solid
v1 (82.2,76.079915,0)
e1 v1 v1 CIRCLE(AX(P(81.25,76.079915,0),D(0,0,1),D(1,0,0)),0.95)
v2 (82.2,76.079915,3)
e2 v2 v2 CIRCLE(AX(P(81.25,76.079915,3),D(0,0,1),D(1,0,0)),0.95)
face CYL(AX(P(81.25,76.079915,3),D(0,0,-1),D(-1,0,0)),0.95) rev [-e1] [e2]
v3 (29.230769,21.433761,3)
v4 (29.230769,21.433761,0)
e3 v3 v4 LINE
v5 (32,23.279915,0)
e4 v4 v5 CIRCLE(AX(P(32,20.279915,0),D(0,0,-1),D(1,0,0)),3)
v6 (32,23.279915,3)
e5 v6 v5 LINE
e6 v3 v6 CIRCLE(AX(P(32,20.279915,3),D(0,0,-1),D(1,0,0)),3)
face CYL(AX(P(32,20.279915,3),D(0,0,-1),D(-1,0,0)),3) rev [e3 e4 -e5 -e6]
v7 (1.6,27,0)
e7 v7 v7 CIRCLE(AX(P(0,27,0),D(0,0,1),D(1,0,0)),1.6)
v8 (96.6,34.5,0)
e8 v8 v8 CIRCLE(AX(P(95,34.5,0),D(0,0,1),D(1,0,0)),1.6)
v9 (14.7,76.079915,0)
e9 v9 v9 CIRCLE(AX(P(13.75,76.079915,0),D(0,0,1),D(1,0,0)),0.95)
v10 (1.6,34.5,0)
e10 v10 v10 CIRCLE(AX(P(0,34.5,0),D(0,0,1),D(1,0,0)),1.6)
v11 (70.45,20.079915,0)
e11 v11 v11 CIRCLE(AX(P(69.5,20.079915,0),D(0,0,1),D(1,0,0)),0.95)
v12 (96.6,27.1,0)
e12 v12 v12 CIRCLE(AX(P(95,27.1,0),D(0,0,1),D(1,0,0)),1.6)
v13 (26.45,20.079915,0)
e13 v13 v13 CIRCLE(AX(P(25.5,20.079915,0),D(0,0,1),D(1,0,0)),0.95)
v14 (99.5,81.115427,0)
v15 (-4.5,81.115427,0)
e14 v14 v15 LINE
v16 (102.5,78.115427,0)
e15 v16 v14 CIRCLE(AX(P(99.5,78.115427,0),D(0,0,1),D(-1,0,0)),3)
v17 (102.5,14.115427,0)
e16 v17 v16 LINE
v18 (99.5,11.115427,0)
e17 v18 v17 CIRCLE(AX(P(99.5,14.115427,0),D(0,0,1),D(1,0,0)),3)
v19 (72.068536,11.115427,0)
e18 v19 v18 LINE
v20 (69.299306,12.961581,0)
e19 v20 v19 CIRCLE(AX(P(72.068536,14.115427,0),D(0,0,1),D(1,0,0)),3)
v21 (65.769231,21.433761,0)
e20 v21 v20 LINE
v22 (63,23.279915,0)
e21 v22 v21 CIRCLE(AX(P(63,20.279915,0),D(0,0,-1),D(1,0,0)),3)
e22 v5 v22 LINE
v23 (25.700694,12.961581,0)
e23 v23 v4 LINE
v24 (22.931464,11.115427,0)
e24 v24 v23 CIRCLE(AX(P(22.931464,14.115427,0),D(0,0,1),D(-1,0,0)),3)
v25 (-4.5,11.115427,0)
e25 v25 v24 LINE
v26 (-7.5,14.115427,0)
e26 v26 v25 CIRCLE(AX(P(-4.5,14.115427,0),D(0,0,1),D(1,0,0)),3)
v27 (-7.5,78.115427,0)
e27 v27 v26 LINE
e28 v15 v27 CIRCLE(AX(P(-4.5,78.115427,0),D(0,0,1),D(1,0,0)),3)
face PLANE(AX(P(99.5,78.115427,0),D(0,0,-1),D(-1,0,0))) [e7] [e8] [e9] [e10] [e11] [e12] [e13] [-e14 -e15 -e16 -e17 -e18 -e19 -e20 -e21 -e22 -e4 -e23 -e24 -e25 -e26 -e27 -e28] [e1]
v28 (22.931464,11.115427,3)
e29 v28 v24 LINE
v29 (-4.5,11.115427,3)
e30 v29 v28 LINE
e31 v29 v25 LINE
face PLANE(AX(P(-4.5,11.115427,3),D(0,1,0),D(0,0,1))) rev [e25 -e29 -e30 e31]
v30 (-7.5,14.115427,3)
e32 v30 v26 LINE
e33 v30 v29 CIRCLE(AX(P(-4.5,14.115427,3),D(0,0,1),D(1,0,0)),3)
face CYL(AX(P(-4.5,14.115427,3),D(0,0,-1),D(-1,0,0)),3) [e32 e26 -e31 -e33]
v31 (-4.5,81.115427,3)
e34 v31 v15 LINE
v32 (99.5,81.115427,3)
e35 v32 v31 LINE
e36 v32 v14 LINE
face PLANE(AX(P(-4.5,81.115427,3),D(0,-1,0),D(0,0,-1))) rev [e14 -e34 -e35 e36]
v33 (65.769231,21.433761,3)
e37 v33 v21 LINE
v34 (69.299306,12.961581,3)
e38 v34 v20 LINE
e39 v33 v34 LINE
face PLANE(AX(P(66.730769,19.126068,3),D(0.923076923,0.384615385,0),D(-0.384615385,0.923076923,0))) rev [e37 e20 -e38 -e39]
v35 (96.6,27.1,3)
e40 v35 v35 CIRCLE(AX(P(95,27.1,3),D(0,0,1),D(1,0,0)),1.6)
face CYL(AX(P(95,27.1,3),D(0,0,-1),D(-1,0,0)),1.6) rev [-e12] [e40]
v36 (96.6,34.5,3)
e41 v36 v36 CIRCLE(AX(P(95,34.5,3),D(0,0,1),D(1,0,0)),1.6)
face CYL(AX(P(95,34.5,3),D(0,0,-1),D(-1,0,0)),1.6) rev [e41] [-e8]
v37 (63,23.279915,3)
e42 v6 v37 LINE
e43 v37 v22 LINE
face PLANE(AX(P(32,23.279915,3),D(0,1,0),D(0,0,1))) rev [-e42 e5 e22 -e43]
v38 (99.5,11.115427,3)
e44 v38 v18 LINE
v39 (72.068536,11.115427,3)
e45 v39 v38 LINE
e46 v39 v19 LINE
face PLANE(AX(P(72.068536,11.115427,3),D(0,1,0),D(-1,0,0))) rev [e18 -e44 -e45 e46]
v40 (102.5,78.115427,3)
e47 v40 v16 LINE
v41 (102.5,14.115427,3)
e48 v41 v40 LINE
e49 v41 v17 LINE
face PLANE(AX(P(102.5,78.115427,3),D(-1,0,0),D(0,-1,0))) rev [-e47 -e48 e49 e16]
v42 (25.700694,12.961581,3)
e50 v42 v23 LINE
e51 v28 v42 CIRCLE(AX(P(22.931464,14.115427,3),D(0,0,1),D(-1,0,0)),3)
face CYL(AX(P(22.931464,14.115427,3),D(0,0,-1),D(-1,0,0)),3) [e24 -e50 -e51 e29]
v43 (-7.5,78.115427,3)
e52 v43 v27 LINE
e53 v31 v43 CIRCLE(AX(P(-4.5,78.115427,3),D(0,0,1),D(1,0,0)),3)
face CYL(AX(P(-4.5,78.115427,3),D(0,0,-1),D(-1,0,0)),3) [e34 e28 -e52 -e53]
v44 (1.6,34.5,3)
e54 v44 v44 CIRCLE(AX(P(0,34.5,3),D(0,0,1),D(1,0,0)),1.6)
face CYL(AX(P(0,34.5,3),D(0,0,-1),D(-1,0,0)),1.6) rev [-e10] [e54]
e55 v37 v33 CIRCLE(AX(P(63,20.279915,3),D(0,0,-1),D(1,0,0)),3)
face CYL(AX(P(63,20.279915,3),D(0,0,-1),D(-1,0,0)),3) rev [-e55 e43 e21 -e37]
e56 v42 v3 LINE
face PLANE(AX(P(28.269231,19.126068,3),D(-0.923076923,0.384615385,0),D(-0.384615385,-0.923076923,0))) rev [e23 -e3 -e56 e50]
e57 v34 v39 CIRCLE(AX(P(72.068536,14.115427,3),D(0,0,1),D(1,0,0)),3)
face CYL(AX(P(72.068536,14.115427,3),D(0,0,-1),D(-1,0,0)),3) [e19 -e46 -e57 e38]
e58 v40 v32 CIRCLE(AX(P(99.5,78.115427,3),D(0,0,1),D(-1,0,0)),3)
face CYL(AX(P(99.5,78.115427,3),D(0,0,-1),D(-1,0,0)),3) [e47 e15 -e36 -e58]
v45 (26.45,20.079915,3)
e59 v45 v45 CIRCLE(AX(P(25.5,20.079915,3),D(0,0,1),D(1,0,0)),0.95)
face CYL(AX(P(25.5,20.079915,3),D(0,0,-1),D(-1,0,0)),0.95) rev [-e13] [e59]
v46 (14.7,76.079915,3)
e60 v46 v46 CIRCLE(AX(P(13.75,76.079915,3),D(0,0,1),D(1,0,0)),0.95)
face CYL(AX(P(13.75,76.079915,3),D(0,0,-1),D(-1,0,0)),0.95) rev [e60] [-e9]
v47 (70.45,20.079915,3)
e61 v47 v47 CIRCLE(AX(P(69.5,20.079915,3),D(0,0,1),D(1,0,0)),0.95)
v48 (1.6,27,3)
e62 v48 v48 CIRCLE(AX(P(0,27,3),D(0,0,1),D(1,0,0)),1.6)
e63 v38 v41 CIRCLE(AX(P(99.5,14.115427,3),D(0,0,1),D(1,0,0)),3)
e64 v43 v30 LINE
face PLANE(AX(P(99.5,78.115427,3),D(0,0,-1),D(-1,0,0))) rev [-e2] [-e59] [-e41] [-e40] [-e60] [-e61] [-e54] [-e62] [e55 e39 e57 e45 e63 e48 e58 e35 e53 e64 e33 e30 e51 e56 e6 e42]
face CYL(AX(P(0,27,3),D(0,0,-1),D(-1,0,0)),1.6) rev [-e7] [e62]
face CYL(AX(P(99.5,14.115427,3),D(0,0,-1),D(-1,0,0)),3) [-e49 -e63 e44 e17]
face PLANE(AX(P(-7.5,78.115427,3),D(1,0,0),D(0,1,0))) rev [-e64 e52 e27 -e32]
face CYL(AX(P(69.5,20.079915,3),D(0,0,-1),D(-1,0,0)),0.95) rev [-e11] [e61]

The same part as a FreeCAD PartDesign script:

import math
import FreeCAD as App
import Part
import Sketcher

doc = App.newDocument("Part")
params = doc.addObject("Spreadsheet::Sheet", "Params")
for row, (alias, value) in enumerate([
    ("sketch1_radius", "3 mm"),
    ("sketch1_diameter", "3.2 mm"),
    ("sketch1_diameter2", "1.9 mm"),
    ("sketch1_width", "31 mm"),
    ("sketch1_width2", "104 mm"),
    ("pad1_length", "3 mm"),
], start=1):
    params.set(f"A{row}", alias)
    params.set(f"B{row}", "=" + value)
    params.setAlias(f"B{row}", alias)

body = doc.addObject("PartDesign::Body", "Body")

sketch1 = body.newObject("Sketcher::SketchObject", "Sketch")
sketch1.AttachmentSupport = (doc.getObject("XY_Plane"), [""])
sketch1.MapMode = "FlatFace"
sketch1.addGeometry([
    Part.LineSegment(App.Vector(32, 23.3, 0), App.Vector(63, 23.3, 0)),
    Part.ArcOfCircle(Part.Circle(App.Vector(63, 20.3, 0), App.Vector(0, 0, 1), 3), math.radians(23), math.radians(90)),
    Part.LineSegment(App.Vector(65.8, 21.4, 0), App.Vector(66.7, 19.1, 0)),
    Part.LineSegment(App.Vector(66.7, 19.1, 0), App.Vector(69.3, 13, 0)),
    Part.ArcOfCircle(Part.Circle(App.Vector(72.1, 14.1, 0), App.Vector(0, 0, 1), 3), math.radians(-157), math.radians(-90)),
    Part.LineSegment(App.Vector(72.1, 11.1, 0), App.Vector(99.5, 11.1, 0)),
    Part.ArcOfCircle(Part.Circle(App.Vector(99.5, 14.1, 0), App.Vector(0, 0, 1), 3), math.radians(-90), math.radians(0)),
    Part.LineSegment(App.Vector(102.5, 14.1, 0), App.Vector(102.5, 78.1, 0)),
    Part.ArcOfCircle(Part.Circle(App.Vector(99.5, 78.1, 0), App.Vector(0, 0, 1), 3), math.radians(0), math.radians(90)),
    Part.LineSegment(App.Vector(99.5, 81.1, 0), App.Vector(-4.5, 81.1, 0)),
    Part.ArcOfCircle(Part.Circle(App.Vector(-4.5, 78.1, 0), App.Vector(0, 0, 1), 3), math.radians(90), math.radians(180)),
    Part.LineSegment(App.Vector(-7.5, 78.1, 0), App.Vector(-7.5, 14.1, 0)),
    Part.ArcOfCircle(Part.Circle(App.Vector(-4.5, 14.1, 0), App.Vector(0, 0, 1), 3), math.radians(180), math.radians(270)),
    Part.LineSegment(App.Vector(-4.5, 11.1, 0), App.Vector(22.9, 11.1, 0)),
    Part.ArcOfCircle(Part.Circle(App.Vector(22.9, 14.1, 0), App.Vector(0, 0, 1), 3), math.radians(-90), math.radians(-23)),
    Part.LineSegment(App.Vector(25.7, 13, 0), App.Vector(28.3, 19.1, 0)),
    Part.LineSegment(App.Vector(28.3, 19.1, 0), App.Vector(29.2, 21.4, 0)),
    Part.ArcOfCircle(Part.Circle(App.Vector(32, 20.3, 0), App.Vector(0, 0, 1), 3), math.radians(90), math.radians(157)),
    Part.Circle(App.Vector(0, 27, 0), App.Vector(0, 0, 1), 1.6),
    Part.Circle(App.Vector(25.5, 20.1, 0), App.Vector(0, 0, 1), 0.9),
    Part.Circle(App.Vector(0, 34.5, 0), App.Vector(0, 0, 1), 1.6),
    Part.Circle(App.Vector(69.5, 20.1, 0), App.Vector(0, 0, 1), 0.9),
    Part.Circle(App.Vector(95, 27.1, 0), App.Vector(0, 0, 1), 1.6),
    Part.Circle(App.Vector(95, 34.5, 0), App.Vector(0, 0, 1), 1.6),
    Part.Circle(App.Vector(13.8, 76.1, 0), App.Vector(0, 0, 1), 0.9),
    Part.Circle(App.Vector(81.2, 76.1, 0), App.Vector(0, 0, 1), 0.9),
], False)
sketch1.addConstraint([
    Sketcher.Constraint("Tangent", 0, 2, 1, 2),
    Sketcher.Constraint("Tangent", 1, 1, 2, 1),
    Sketcher.Constraint("Coincident", 2, 2, 3, 1),
    Sketcher.Constraint("Tangent", 3, 2, 4, 1),
    Sketcher.Constraint("Tangent", 4, 2, 5, 1),
    Sketcher.Constraint("Tangent", 5, 2, 6, 1),
    Sketcher.Constraint("Tangent", 6, 2, 7, 1),
    Sketcher.Constraint("Tangent", 7, 2, 8, 1),
    Sketcher.Constraint("Tangent", 8, 2, 9, 1),
    Sketcher.Constraint("Tangent", 9, 2, 10, 1),
    Sketcher.Constraint("Tangent", 10, 2, 11, 1),
    Sketcher.Constraint("Tangent", 11, 2, 12, 1),
    Sketcher.Constraint("Tangent", 12, 2, 13, 1),
    Sketcher.Constraint("Tangent", 13, 2, 14, 1),
    Sketcher.Constraint("Tangent", 14, 2, 15, 1),
    Sketcher.Constraint("Coincident", 15, 2, 16, 1),
    Sketcher.Constraint("Tangent", 16, 2, 17, 2),
    Sketcher.Constraint("Tangent", 17, 1, 0, 1),
    Sketcher.Constraint("Horizontal", 0),
    Sketcher.Constraint("Horizontal", 5),
    Sketcher.Constraint("Vertical", 7),
    Sketcher.Constraint("Horizontal", 9),
    Sketcher.Constraint("Vertical", 11),
    Sketcher.Constraint("Horizontal", 13),
    Sketcher.Constraint("Equal", 1, 4),
    Sketcher.Constraint("Equal", 4, 6),
    Sketcher.Constraint("Equal", 6, 8),
    Sketcher.Constraint("Equal", 8, 10),
    Sketcher.Constraint("Equal", 10, 12),
    Sketcher.Constraint("Equal", 12, 14),
    Sketcher.Constraint("Equal", 14, 17),
    Sketcher.Constraint("Equal", 18, 20),
    Sketcher.Constraint("Equal", 19, 21),
    Sketcher.Constraint("Equal", 20, 22),
    Sketcher.Constraint("Equal", 22, 23),
    Sketcher.Constraint("Equal", 21, 24),
    Sketcher.Constraint("Equal", 24, 25),
    Sketcher.Constraint("PointOnObject", 18, 3, -2),
    Sketcher.Constraint("PointOnObject", 20, 3, -2),
    Sketcher.Constraint("Parallel", 2, 3),
    Sketcher.Constraint("Parallel", 15, 16),
    Sketcher.Constraint("Horizontal", 6, 3, 12, 3),
    Sketcher.Constraint("Horizontal", 19, 3, 21, 3),
    Sketcher.Constraint("Horizontal", 20, 3, 23, 3),
    Sketcher.Constraint("Horizontal", 24, 3, 25, 3),
    Sketcher.Constraint("Horizontal", 3, 2, 14, 2),
    Sketcher.Constraint("Horizontal", 2, 2, 15, 2),
    Sketcher.Constraint("Vertical", 22, 3, 23, 3),
    Sketcher.Constraint("Equal", 5, 13),
    Sketcher.Constraint("Radius", 1, 3.0),
    Sketcher.Constraint("Diameter", 18, 3.2),
    Sketcher.Constraint("Diameter", 19, 1.9),
    Sketcher.Constraint("DistanceX", 0, 1, 0, 2, 31.0),
    Sketcher.Constraint("DistanceX", 9, 2, 9, 1, 104.0),
    Sketcher.Constraint("DistanceY", 7, 1, 7, 2, 64.0),
    Sketcher.Constraint("DistanceX", -1, 1, 1, 3, 63.0),
    Sketcher.Constraint("DistanceY", -1, 1, 18, 3, 27.0),
    Sketcher.Constraint("DistanceX", -1, 1, 22, 3, 95.0),
    Sketcher.Constraint("DistanceX", 12, 3, 19, 3, 30.0),
    Sketcher.Constraint("DistanceX", 21, 3, 6, 3, 30.0),
    Sketcher.Constraint("DistanceY", 19, 3, 24, 3, 56.0),
    Sketcher.Constraint("Distance", 2, 2.5),
    Sketcher.Constraint("DistanceY", -1, 1, 20, 3, 34.5),
    Sketcher.Constraint("DistanceY", -1, 1, 22, 3, 27.1),
    Sketcher.Constraint("DistanceY", 19, 3, 17, 3, 0.2),
    Sketcher.Constraint("DistanceX", -1, 1, 24, 3, 13.75),
    Sketcher.Constraint("DistanceX", -1, 1, 25, 3, 81.25),
    Sketcher.Constraint("DistanceX", 5, 1, 5, 2, 27.431464),
    Sketcher.Constraint("DistanceX", -1, 1, 1, 1, 65.769231),
    Sketcher.Constraint("DistanceY", -1, 1, 1, 1, 21.433761),
])
sketch1.setExpression("Constraints[49]", "Params.sketch1_radius")
sketch1.setExpression("Constraints[50]", "Params.sketch1_diameter")
sketch1.setExpression("Constraints[51]", "Params.sketch1_diameter2")
sketch1.setExpression("Constraints[52]", "Params.sketch1_width")
sketch1.setExpression("Constraints[53]", "Params.sketch1_width2")
pad1 = body.newObject("PartDesign::Pad", "Pad")
pad1.Profile = sketch1
pad1.setExpression("Length", "Params.pad1_length")

doc.recompute()
